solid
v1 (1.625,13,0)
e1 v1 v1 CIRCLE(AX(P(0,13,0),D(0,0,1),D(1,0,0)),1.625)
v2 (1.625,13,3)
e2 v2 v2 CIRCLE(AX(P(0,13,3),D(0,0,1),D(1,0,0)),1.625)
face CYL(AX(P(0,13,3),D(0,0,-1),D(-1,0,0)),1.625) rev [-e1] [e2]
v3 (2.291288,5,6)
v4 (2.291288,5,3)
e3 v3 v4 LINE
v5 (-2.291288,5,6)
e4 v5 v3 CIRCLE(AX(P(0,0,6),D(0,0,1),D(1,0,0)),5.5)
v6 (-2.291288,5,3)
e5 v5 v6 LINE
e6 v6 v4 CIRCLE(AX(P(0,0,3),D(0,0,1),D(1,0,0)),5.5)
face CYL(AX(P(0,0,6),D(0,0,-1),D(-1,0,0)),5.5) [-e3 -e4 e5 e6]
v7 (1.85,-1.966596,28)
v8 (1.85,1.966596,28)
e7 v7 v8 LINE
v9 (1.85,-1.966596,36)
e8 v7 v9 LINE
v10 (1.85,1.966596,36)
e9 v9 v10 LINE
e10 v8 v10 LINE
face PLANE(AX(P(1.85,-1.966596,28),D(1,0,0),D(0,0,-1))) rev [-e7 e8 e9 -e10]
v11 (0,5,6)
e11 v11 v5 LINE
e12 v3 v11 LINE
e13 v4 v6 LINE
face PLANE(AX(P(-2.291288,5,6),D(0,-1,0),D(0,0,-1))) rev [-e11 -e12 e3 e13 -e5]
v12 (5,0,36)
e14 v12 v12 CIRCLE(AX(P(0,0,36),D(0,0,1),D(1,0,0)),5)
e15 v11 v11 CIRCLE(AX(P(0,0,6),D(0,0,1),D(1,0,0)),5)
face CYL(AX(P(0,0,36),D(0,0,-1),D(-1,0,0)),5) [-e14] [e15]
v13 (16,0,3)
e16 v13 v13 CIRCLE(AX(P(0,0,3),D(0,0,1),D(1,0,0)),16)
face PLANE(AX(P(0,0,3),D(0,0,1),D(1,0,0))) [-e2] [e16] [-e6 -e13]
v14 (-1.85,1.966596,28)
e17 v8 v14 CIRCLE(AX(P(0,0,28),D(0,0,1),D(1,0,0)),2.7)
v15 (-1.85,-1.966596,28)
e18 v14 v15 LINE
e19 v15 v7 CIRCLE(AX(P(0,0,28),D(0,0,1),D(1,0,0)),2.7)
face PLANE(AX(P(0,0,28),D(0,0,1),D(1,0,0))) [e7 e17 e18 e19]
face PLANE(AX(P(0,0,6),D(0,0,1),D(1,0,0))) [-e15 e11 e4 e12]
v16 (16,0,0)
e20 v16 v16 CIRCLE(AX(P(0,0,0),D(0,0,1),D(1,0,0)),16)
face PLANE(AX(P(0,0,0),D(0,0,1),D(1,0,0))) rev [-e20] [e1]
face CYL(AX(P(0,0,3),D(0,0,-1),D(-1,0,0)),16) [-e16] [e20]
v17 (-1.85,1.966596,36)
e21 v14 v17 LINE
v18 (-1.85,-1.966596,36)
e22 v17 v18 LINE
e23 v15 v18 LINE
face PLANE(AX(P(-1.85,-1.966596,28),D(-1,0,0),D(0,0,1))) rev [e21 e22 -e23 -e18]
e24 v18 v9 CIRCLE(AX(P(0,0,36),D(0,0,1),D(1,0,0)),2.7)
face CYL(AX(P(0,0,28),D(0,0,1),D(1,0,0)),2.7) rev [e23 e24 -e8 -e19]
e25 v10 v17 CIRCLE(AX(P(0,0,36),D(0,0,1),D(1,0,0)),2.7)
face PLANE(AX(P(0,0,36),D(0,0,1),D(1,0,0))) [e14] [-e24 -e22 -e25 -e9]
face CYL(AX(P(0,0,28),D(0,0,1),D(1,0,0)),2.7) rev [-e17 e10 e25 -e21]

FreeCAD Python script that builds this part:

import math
import FreeCAD as App
import Part
import Sketcher
from FreeCAD import Vector
Q = App.Units.Quantity

doc = App.newDocument("Part")
body = doc.addObject("PartDesign::Body", "Body")

sketch1 = body.newObject("Sketcher::SketchObject", "Sketch")
sketch1.AttachmentSupport = (doc.getObject("XY_Plane"), [""])
sketch1.MapMode = "FlatFace"
sketch1.addGeometry([
    Part.Circle(Vector(0, 0, 0), Vector(0, 0, 1), 16),
    Part.Circle(Vector(0, 13, 0), Vector(0, 0, 1), 1.6),
], False)
sketch1.addConstraint([
    Sketcher.Constraint("Coincident", 0, 3, -1, 1),
    Sketcher.Constraint("PointOnObject", 1, 3, -2),
    Sketcher.Constraint("Diameter", 0, Q("32 mm")),
    Sketcher.Constraint("Diameter", 1, Q("3.25 mm")),
    Sketcher.Constraint("DistanceY", -1, 1, 1, 3, Q("13 mm")),
])
pad1 = body.newObject("PartDesign::Pad", "Pad")
pad1.Profile = sketch1
pad1.Length = 3

sketch2 = body.newObject("Sketcher::SketchObject", "Sketch001")
sketch2.AttachmentSupport = (doc.getObject("XY_Plane"), [""])
sketch2.MapMode = "FlatFace"
sketch2.AttachmentOffset = App.Placement(Vector(0, 0, 3), App.Rotation())
sketch2.addGeometry([
    Part.LineSegment(Vector(2.3, 5, 0), Vector(-2.3, 5, 0)),
    Part.ArcOfCircle(Part.Circle(Vector(0, 0, 0), Vector(0, 0, 1), 5.5), math.radians(115), math.radians(425)),
], False)
sketch2.addConstraint([
    Sketcher.Constraint("Coincident", 0, 1, 1, 2),
    Sketcher.Constraint("Coincident", 1, 1, 0, 2),
    Sketcher.Constraint("Horizontal", 0),
    Sketcher.Constraint("Coincident", 1, 3, -1, 1),
    Sketcher.Constraint("Radius", 1, Q("5.5 mm")),
    Sketcher.Constraint("DistanceY", -1, 1, 0, 1, Q("5 mm")),
])
pad2 = body.newObject("PartDesign::Pad", "Pad001")
pad2.Profile = sketch2
pad2.Length = 3

sketch3 = body.newObject("Sketcher::SketchObject", "Sketch002")
sketch3.AttachmentSupport = (doc.getObject("XY_Plane"), [""])
sketch3.MapMode = "FlatFace"
sketch3.AttachmentOffset = App.Placement(Vector(0, 0, 6), App.Rotation())
sketch3.addGeometry(Part.Circle(Vector(0, 0, 0), Vector(0, 0, 1), 5), False)
sketch3.addConstraint([
    Sketcher.Constraint("Coincident", 0, 3, -1, 1),
    Sketcher.Constraint("Diameter", 0, Q("10 mm")),
])
pad3 = body.newObject("PartDesign::Pad", "Pad002")
pad3.Profile = sketch3
pad3.Length = 30

sketch4 = body.newObject("Sketcher::SketchObject", "Sketch003")
sketch4.AttachmentSupport = (doc.getObject("XY_Plane"), [""])
sketch4.MapMode = "FlatFace"
sketch4.AttachmentOffset = App.Placement(Vector(0, 0, 36), App.Rotation())
sketch4.addGeometry([
    Part.LineSegment(Vector(1.9, -2, 0), Vector(1.9, 2, 0)),
    Part.ArcOfCircle(Part.Circle(Vector(0, 0, 0), Vector(0, 0, 1), 2.7), math.radians(47), math.radians(133)),
    Part.LineSegment(Vector(-1.9, 2, 0), Vector(-1.9, -2, 0)),
    Part.ArcOfCircle(Part.Circle(Vector(0, 0, 0), Vector(0, 0, 1), 2.7), math.radians(-133), math.radians(-47)),
], False)
sketch4.addConstraint([
    Sketcher.Constraint("Coincident", 0, 2, 1, 1),
    Sketcher.Constraint("Coincident", 1, 2, 2, 1),
    Sketcher.Constraint("Coincident", 2, 2, 3, 1),
    Sketcher.Constraint("Coincident", 3, 2, 0, 1),
    Sketcher.Constraint("Vertical", 0),
    Sketcher.Constraint("Vertical", 2),
    Sketcher.Constraint("Coincident", 1, 3, -1, 1),
    Sketcher.Constraint("Coincident", 3, 3, -1, 1),
    Sketcher.Constraint("Equal", 1, 3),
    Sketcher.Constraint("Horizontal", 0, 2, 1, 2),
    Sketcher.Constraint("Radius", 1, Q("2.7 mm")),
    Sketcher.Constraint("DistanceX", 1, 2, 0, 2, Q("3.7 mm")),
])
pocket1 = body.newObject("PartDesign::Pocket", "Pocket")
pocket1.Profile = sketch4
pocket1.Length = 8

doc.recompute()
